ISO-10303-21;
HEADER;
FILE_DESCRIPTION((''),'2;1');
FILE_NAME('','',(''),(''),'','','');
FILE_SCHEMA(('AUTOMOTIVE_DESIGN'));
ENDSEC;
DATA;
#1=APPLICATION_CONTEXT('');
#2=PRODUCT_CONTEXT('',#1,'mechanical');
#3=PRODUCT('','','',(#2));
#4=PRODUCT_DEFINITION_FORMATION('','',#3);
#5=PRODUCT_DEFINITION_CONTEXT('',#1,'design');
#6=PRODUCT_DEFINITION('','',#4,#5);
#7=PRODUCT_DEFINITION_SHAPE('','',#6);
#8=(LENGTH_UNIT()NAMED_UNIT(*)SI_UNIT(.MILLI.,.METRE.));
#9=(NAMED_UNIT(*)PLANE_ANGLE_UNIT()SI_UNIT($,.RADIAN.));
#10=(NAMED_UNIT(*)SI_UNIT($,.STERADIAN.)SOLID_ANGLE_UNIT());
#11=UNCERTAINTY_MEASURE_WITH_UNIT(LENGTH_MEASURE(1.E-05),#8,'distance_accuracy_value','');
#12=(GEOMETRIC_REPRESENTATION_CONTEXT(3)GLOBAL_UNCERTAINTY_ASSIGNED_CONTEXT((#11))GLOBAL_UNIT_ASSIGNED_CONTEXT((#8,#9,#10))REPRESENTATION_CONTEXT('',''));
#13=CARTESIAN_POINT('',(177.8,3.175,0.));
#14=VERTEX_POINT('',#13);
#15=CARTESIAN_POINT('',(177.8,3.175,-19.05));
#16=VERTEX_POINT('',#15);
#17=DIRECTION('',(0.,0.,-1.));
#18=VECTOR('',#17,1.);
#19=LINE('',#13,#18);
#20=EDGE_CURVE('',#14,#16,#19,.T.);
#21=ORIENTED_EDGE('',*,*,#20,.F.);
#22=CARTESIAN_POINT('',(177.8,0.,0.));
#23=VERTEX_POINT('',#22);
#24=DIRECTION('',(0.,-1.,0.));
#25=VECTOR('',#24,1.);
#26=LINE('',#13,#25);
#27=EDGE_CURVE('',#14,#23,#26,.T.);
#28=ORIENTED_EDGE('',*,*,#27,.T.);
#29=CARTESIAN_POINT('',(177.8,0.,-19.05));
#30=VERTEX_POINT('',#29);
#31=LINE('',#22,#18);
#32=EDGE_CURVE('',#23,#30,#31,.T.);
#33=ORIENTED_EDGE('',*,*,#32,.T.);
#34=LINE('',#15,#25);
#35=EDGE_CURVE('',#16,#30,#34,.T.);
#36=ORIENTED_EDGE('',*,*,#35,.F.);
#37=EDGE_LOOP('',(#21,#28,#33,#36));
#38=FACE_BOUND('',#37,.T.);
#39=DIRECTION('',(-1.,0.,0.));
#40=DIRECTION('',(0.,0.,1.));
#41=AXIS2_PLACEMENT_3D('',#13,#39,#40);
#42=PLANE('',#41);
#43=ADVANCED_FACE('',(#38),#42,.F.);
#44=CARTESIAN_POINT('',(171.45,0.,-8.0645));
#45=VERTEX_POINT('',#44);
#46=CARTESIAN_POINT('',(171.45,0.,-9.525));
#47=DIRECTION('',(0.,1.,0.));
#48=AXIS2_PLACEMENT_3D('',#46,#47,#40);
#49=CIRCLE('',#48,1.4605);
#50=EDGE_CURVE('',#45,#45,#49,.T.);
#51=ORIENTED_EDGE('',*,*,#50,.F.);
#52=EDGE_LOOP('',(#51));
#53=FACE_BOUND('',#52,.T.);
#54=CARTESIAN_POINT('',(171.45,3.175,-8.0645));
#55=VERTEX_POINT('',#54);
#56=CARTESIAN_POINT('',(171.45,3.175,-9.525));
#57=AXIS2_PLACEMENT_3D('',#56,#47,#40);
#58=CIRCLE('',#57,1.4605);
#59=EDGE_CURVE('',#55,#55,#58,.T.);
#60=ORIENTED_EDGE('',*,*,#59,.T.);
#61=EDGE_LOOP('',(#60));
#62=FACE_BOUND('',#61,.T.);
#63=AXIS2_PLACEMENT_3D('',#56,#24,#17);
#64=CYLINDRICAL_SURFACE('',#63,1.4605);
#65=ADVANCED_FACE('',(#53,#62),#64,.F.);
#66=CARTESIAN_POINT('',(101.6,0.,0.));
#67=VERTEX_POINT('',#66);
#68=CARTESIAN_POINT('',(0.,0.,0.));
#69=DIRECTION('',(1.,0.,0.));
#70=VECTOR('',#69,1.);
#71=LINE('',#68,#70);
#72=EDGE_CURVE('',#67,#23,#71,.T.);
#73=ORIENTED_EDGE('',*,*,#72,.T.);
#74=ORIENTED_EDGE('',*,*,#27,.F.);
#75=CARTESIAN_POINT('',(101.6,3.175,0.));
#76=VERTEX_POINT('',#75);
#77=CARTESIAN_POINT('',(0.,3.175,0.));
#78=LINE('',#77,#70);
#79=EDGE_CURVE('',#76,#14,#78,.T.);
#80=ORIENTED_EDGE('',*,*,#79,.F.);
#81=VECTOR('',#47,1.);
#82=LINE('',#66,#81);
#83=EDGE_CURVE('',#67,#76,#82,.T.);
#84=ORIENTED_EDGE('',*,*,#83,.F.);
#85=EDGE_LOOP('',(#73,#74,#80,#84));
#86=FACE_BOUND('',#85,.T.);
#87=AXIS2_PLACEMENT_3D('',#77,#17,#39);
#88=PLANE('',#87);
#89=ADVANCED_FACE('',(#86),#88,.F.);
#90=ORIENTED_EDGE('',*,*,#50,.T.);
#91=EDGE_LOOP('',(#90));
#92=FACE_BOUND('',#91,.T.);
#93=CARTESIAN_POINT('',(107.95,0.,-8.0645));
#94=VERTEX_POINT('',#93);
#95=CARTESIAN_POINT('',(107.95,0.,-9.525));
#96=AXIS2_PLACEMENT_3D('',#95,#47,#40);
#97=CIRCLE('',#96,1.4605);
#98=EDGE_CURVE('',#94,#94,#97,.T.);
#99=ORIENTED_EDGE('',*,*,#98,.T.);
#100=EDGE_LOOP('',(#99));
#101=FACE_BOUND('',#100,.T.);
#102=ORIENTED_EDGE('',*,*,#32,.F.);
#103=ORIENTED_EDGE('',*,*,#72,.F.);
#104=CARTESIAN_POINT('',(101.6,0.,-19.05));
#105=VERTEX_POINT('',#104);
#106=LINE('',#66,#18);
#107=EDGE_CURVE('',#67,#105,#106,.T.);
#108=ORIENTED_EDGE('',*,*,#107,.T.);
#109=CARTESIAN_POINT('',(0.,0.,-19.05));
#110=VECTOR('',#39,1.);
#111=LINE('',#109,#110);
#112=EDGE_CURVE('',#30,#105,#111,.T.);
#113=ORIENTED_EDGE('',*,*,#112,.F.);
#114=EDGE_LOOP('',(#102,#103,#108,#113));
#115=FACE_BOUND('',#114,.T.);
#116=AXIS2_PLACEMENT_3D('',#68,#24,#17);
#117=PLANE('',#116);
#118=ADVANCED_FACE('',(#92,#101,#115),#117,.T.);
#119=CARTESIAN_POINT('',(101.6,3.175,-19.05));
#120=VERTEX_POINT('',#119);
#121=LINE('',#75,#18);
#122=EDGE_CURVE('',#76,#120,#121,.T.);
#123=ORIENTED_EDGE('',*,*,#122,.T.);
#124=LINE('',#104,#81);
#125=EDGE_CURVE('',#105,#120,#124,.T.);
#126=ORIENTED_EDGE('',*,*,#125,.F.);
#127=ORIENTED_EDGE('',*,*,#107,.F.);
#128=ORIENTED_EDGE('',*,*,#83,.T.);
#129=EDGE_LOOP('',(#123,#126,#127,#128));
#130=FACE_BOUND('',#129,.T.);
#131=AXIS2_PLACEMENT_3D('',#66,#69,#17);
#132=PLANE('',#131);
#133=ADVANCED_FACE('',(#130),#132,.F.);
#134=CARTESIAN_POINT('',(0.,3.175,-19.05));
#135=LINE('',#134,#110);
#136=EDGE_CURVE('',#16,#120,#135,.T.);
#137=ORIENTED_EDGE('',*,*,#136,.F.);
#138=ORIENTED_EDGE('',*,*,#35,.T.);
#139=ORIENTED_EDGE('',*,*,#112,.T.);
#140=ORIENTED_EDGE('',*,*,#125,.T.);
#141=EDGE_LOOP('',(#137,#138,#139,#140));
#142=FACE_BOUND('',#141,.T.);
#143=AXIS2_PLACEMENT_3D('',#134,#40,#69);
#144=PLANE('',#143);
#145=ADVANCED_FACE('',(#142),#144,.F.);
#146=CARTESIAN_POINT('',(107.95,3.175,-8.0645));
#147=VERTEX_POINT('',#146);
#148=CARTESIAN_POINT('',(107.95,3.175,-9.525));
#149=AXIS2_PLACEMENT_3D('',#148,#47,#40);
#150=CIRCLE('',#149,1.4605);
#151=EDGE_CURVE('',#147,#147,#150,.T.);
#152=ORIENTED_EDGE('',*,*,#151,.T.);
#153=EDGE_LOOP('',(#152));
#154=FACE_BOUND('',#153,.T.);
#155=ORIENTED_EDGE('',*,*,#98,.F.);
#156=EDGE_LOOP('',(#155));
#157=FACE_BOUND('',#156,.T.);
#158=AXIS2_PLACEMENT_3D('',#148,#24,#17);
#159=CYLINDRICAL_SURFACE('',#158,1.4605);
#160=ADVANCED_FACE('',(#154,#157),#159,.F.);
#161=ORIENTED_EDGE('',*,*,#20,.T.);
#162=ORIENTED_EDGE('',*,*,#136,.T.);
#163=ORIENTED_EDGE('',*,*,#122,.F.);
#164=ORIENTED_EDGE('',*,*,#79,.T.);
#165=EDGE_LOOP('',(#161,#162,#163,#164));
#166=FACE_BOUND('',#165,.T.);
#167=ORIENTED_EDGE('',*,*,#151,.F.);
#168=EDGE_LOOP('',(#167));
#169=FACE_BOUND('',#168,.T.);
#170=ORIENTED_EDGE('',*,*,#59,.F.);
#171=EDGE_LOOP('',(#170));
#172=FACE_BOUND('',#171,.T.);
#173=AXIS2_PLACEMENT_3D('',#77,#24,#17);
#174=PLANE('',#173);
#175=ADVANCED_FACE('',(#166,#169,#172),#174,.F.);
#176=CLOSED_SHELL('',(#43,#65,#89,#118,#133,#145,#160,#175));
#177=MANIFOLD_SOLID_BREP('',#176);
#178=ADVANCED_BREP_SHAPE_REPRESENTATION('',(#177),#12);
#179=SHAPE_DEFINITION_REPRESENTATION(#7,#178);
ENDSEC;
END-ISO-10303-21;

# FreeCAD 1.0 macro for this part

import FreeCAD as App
import Part
import Sketcher
Q = App.Units.Quantity


def add_polygon(sketch, points):
    """Adds a closed chain of lines whose ends are joined by coincident constraints."""
    first, n = sketch.GeometryCount, len(points)
    for a, b in zip(points, points[1:] + points[:1]):
        sketch.addGeometry(Part.LineSegment(App.Vector(*a, 0), App.Vector(*b, 0)), False)
    for i in range(n):
        sketch.addConstraint(Sketcher.Constraint("Coincident", first + i, 2, first + (i + 1) % n, 1))

doc = App.newDocument("Part")
body = doc.addObject("PartDesign::Body", "Body")

# Sketch on XZ plane
sketch1 = body.newObject("Sketcher::SketchObject", "Sketch")
sketch1.AttachmentSupport = (doc.getObject("XZ_Plane"), [""])
sketch1.MapMode = "FlatFace"
add_polygon(sketch1, [(0, -19.05), (0, 0), (177.8, 0), (177.8, -19.05)])  # lines 0-3
sketch1.addGeometry(Part.Circle(App.Vector(6.35, -9.525, 0), App.Vector(0, 0, 1), 1.4605), False)  # 4
sketch1.addGeometry(Part.Circle(App.Vector(107.95, -9.525, 0), App.Vector(0, 0, 1), 1.4605), False)  # 5
sketch1.addGeometry(Part.Circle(App.Vector(171.45, -9.525, 0), App.Vector(0, 0, 1), 1.4605), False)  # 6
sketch1.addConstraint([
    Sketcher.Constraint("Vertical", 0),
    Sketcher.Constraint("Horizontal", 1),
    Sketcher.Constraint("Vertical", 2),
    Sketcher.Constraint("Horizontal", 3),
    Sketcher.Constraint("Coincident", 0, 2, -1, 1),
    Sketcher.Constraint("Equal", 4, 5),
    Sketcher.Constraint("Equal", 5, 6),
    Sketcher.Constraint("Horizontal", 4, 3, 5, 3),
    Sketcher.Constraint("Horizontal", 5, 3, 6, 3),
    Sketcher.Constraint("DistanceX", 1, 1, 1, 2, Q("7 in")),
    Sketcher.Constraint("Diameter", 4, Q("0.115 in")),
    Sketcher.Constraint("DistanceX", 4, 3, 5, 3, Q("4 in")),
    Sketcher.Constraint("DistanceY", 0, 1, 0, 2, Q("0.75 in")),
    Sketcher.Constraint("DistanceX", 5, 3, 6, 3, Q("2.5 in")),
    Sketcher.Constraint("DistanceX", -1, 1, 4, 3, Q("0.25 in")),
    Sketcher.Constraint("DistanceY", 4, 3, -1, 1, Q("0.375 in")),
])
pad1 = body.newObject("PartDesign::Pad", "Pad")
pad1.Profile = sketch1
pad1.Length = Q("0.125 in")
pad1.Reversed = True

# Sketch on XZ plane
sketch2 = body.newObject("Sketcher::SketchObject", "Sketch001")
sketch2.AttachmentSupport = (doc.getObject("XZ_Plane"), [""])
sketch2.MapMode = "FlatFace"
sketch2.AttachmentOffset = App.Placement(App.Vector(0, 0, -0.125 * 25.4), App.Rotation())
add_polygon(sketch2, [(0, -19.05), (0, 0), (101.6, 0), (101.6, -19.05)])  # lines 0-3
sketch2.addConstraint([
    Sketcher.Constraint("Vertical", 0),
    Sketcher.Constraint("Horizontal", 1),
    Sketcher.Constraint("Vertical", 2),
    Sketcher.Constraint("Horizontal", 3),
    Sketcher.Constraint("Coincident", 0, 2, -1, 1),
    Sketcher.Constraint("DistanceX", 1, 1, 1, 2, Q("4 in")),
    Sketcher.Constraint("DistanceY", 0, 1, 0, 2, Q("0.75 in")),
])
pocket1 = body.newObject("PartDesign::Pocket", "Pocket")
pocket1.Profile = sketch2
pocket1.Type = "ThroughAll"
pocket1.Reversed = True

doc.recompute()
